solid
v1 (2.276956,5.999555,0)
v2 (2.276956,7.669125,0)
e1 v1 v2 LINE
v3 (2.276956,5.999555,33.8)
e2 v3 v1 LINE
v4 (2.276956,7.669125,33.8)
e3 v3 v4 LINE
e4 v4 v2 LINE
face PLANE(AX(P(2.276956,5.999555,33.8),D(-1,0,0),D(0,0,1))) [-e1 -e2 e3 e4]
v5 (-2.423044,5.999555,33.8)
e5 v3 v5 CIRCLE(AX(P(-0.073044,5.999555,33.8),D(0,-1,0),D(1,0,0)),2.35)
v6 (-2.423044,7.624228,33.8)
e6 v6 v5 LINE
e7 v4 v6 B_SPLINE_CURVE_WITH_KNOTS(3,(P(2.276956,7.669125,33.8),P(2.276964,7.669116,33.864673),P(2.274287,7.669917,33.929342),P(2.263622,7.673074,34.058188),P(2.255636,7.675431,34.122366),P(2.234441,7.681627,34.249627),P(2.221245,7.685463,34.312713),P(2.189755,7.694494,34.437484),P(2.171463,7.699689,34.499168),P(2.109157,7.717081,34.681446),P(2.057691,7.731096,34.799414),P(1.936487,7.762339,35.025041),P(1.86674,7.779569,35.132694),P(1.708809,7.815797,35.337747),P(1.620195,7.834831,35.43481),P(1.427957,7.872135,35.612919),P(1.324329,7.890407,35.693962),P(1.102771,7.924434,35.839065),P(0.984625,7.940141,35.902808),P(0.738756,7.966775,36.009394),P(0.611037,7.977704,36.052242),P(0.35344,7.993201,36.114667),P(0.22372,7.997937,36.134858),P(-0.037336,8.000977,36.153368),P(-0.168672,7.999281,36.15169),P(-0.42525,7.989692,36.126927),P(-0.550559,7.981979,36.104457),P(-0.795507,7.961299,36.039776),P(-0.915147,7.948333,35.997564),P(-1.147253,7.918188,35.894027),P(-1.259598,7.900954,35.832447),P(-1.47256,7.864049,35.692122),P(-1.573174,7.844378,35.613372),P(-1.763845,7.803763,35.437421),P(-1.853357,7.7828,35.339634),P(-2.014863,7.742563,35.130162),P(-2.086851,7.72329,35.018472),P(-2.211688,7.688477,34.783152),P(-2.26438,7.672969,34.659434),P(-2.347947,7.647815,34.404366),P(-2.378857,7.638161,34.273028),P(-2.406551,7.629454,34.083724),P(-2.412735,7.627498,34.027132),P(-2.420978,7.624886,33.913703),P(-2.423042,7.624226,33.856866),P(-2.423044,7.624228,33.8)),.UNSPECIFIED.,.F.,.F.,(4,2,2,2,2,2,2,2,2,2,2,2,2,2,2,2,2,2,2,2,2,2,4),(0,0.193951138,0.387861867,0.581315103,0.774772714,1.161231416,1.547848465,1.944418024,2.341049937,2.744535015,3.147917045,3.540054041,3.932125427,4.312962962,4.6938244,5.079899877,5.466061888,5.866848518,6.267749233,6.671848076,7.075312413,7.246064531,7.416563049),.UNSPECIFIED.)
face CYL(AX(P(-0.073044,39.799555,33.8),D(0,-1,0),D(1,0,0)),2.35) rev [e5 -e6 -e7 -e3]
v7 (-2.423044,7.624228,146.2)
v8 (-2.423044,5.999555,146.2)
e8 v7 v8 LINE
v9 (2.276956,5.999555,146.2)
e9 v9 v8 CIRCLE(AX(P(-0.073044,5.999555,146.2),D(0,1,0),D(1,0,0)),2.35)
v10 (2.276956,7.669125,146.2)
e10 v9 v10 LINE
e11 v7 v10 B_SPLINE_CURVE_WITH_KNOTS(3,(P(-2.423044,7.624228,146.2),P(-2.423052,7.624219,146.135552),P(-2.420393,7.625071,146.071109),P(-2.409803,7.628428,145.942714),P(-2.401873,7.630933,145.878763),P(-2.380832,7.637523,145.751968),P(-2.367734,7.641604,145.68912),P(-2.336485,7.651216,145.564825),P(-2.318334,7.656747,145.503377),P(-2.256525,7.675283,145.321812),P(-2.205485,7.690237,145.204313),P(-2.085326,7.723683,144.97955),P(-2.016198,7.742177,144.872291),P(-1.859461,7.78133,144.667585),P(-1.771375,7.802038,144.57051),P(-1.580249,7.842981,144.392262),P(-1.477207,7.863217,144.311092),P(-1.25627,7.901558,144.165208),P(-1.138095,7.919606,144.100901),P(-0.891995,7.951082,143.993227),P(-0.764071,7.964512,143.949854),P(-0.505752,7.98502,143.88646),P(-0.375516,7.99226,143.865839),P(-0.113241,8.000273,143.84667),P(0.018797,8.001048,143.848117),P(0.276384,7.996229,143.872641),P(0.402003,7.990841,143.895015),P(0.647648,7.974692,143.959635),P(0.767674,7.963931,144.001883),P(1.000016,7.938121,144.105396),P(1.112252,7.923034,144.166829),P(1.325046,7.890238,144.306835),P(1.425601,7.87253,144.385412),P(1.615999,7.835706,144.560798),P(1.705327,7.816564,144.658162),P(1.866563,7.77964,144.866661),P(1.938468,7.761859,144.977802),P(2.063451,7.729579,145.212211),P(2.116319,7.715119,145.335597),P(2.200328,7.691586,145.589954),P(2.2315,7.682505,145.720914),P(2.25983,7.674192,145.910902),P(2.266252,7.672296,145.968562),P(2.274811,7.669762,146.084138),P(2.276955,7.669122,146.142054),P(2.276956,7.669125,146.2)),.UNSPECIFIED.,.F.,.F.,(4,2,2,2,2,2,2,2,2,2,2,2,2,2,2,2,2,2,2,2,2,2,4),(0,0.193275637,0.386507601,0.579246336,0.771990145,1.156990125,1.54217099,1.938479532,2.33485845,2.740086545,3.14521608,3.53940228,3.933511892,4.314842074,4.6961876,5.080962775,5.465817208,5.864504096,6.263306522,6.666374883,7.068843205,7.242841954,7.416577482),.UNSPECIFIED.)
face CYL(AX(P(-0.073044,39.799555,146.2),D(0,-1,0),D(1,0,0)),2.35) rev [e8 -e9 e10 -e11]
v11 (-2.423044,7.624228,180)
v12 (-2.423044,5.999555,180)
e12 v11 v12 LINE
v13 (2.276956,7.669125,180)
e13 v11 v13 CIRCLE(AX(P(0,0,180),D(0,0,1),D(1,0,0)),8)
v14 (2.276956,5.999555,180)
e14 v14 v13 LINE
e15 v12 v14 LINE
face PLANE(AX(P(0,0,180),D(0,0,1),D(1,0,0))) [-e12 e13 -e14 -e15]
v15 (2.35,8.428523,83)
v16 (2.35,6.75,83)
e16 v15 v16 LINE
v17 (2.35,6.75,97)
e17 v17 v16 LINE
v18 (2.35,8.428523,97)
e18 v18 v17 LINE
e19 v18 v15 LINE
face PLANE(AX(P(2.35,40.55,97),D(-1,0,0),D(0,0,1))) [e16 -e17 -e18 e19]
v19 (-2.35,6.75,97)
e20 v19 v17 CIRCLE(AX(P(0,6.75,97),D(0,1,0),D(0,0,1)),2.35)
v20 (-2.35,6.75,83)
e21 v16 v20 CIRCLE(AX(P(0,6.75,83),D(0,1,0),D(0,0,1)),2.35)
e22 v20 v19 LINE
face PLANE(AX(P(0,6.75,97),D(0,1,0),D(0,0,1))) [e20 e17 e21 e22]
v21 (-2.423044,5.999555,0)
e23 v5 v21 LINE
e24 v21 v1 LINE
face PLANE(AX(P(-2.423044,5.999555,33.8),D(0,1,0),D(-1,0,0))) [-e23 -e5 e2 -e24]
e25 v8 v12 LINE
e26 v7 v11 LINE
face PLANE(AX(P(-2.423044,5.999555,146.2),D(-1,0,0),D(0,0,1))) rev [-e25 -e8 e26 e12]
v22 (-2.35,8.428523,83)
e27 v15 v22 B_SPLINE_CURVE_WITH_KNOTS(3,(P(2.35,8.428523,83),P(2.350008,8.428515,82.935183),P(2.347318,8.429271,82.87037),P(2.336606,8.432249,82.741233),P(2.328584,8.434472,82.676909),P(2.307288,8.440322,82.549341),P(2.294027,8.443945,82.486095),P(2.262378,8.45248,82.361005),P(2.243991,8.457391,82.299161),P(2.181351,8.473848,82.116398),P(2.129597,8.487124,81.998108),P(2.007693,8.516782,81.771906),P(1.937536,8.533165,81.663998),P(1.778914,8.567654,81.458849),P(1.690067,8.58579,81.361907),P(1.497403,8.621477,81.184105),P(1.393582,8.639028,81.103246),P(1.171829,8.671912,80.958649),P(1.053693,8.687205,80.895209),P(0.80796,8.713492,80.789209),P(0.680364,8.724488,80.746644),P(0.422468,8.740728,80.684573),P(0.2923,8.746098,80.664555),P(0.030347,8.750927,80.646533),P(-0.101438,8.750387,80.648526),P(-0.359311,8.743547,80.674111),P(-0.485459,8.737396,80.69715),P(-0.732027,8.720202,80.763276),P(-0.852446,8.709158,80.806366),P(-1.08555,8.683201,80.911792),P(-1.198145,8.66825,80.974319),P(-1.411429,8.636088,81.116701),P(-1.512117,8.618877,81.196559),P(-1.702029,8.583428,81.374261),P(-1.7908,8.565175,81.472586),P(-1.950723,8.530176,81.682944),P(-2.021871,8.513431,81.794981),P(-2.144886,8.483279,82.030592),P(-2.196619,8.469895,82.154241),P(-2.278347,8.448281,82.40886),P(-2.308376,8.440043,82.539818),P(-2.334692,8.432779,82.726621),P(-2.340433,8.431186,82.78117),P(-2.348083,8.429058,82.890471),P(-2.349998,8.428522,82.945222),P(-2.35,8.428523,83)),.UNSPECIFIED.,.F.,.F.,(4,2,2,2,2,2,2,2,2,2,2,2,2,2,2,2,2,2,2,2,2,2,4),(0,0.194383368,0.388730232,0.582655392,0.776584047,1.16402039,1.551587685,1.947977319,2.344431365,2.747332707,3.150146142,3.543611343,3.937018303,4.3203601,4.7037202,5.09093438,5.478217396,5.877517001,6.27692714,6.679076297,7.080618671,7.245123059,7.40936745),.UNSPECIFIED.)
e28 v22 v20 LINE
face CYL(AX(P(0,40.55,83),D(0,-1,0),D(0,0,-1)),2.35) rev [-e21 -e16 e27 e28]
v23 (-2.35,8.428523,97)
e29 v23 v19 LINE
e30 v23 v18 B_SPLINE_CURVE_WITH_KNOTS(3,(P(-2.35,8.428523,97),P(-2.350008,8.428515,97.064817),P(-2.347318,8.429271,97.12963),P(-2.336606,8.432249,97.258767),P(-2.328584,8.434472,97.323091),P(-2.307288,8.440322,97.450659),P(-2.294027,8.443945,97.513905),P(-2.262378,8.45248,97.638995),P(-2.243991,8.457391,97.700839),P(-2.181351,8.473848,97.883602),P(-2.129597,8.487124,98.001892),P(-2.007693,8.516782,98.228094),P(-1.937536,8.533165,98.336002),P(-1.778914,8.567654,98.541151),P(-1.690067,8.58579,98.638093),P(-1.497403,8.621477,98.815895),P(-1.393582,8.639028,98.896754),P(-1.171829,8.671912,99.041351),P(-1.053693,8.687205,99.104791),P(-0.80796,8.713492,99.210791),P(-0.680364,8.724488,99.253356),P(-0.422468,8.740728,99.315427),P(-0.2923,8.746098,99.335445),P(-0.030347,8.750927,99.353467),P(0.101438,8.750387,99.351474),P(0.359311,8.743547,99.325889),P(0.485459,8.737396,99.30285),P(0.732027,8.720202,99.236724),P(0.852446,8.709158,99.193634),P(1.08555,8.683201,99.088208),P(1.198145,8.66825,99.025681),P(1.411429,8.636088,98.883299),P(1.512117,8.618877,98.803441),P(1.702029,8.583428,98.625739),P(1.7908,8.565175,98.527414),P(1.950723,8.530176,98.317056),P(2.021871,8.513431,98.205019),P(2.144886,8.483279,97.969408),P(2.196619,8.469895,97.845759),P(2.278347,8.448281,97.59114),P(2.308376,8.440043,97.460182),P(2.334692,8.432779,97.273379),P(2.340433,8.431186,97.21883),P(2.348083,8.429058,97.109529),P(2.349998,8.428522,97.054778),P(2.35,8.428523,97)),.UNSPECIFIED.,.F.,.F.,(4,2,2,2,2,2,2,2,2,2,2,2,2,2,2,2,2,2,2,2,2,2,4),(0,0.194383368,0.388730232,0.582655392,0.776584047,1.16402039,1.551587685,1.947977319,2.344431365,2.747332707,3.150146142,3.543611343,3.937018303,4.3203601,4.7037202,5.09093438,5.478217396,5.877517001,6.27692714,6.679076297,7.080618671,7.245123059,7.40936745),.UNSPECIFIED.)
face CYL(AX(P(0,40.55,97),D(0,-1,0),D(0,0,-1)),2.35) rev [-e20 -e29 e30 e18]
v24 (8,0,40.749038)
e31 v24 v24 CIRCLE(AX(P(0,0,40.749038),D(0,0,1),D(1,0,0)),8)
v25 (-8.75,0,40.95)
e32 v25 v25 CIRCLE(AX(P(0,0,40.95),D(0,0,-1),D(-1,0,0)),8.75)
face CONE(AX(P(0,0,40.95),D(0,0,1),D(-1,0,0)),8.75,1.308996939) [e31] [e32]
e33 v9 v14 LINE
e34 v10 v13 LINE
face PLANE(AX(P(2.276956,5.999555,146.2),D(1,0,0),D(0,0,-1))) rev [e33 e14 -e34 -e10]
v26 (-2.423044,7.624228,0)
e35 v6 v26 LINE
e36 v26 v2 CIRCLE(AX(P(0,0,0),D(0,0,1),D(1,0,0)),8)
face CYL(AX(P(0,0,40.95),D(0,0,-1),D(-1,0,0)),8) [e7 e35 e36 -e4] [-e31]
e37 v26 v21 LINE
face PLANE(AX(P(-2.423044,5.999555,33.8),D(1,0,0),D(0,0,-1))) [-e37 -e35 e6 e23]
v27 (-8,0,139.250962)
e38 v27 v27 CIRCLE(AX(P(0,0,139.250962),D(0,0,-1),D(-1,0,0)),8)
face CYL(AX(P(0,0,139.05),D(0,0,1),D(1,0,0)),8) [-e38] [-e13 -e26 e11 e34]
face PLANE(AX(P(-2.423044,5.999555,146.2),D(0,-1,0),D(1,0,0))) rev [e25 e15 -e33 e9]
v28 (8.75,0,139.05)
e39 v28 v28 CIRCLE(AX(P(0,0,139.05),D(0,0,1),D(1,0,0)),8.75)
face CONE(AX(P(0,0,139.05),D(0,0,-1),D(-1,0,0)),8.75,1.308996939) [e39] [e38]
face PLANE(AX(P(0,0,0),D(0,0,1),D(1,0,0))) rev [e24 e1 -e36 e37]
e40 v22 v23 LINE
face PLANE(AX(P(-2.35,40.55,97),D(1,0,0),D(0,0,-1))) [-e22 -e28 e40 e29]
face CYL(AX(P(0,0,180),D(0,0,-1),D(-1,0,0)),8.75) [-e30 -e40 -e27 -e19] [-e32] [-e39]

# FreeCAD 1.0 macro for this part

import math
import FreeCAD as App
import Part
import Sketcher

V = App.Vector

doc = App.newDocument("Part")
body = doc.addObject("PartDesign::Body", "Body")

# Sketch on XY plane
sketch1 = body.newObject("Sketcher::SketchObject", "Sketch")
sketch1.AttachmentSupport = (doc.getObject("XY_Plane"), [""])
sketch1.MapMode = "FlatFace"
sketch1.addGeometry(Part.Circle(V(0, 0, 0), V(0, 0, 1), 9), False)
sketch1.addConstraint(Sketcher.Constraint("Coincident", 0, 3, -1, 1))
sketch1.addConstraint(Sketcher.Constraint("Diameter", 0, 17.5))
pad1 = body.newObject("PartDesign::Pad", "Pad")
pad1.Profile = sketch1
pad1.Length = 180

# Sketch on XY plane
sketch2 = body.newObject("Sketcher::SketchObject", "Sketch001")
sketch2.AttachmentSupport = (doc.getObject("XY_Plane"), [""])
sketch2.MapMode = "FlatFace"
sketch2.AttachmentOffset = App.Placement(V(0, 0, 180), App.Rotation())
sketch2.addGeometry(Part.Circle(V(0, 0, 0), V(0, 0, 1), 9), False)
sketch2.addGeometry(Part.Circle(V(0, 0, 0), V(0, 0, 1), 8), False)
sketch2.addConstraint(Sketcher.Constraint("Coincident", 0, 3, -1, 1))
sketch2.addConstraint(Sketcher.Constraint("Coincident", 1, 3, -1, 1))
sketch2.addConstraint(Sketcher.Constraint("Diameter", 1, 16.0))
sketch2.addConstraint(Sketcher.Constraint("Diameter", 0, 17.5))
pocket1 = body.newObject("PartDesign::Pocket", "Pocket")
pocket1.Profile = sketch2
pocket1.Length = 40.95

# Sketch on XY plane
sketch3 = body.newObject("Sketcher::SketchObject", "Sketch002")
sketch3.AttachmentSupport = (doc.getObject("XY_Plane"), [""])
sketch3.MapMode = "FlatFace"
sketch3.AttachmentOffset = App.Placement(V(0, 0, 180), App.Rotation())
sketch3.addGeometry(Part.LineSegment(V(-2.4, 6, 0), V(2.3, 6, 0)), False)
sketch3.addGeometry(Part.LineSegment(V(2.3, 6, 0), V(2.3, 7.7, 0)), False)
sketch3.addGeometry(Part.ArcOfCircle(Part.Circle(V(0, 0, 0), V(0, 0, 1), 8), math.radians(73), math.radians(108)), False)
sketch3.addGeometry(Part.LineSegment(V(-2.4, 7.6, 0), V(-2.4, 6, 0)), False)
sketch3.addConstraint(Sketcher.Constraint("Coincident", 0, 2, 1, 1))
sketch3.addConstraint(Sketcher.Constraint("Coincident", 1, 2, 2, 1))
sketch3.addConstraint(Sketcher.Constraint("Coincident", 2, 2, 3, 1))
sketch3.addConstraint(Sketcher.Constraint("Coincident", 3, 2, 0, 1))
sketch3.addConstraint(Sketcher.Constraint("Horizontal", 0))
sketch3.addConstraint(Sketcher.Constraint("Vertical", 1))
sketch3.addConstraint(Sketcher.Constraint("Vertical", 3))
sketch3.addConstraint(Sketcher.Constraint("Coincident", 2, 3, -1, 1))
sketch3.addConstraint(Sketcher.Constraint("Radius", 2, 8.0))
sketch3.addConstraint(Sketcher.Constraint("DistanceX", 0, 1, 0, 2, 4.7))
sketch3.addConstraint(Sketcher.Constraint("DistanceY", 1, 1, 1, 2, 1.669569))
sketch3.addConstraint(Sketcher.Constraint("DistanceY", 3, 2, 3, 1, 1.624673))
pocket2 = body.newObject("PartDesign::Pocket", "Pocket001")
pocket2.Profile = sketch3
pocket2.Length = 33.8

# Sketch on XZ plane
sketch4 = body.newObject("Sketcher::SketchObject", "Sketch003")
sketch4.AttachmentSupport = (doc.getObject("XZ_Plane"), [""])
sketch4.MapMode = "FlatFace"
sketch4.AttachmentOffset = App.Placement(V(0, 0, -5.999555), App.Rotation())
sketch4.addGeometry(Part.LineSegment(V(-2.4, 146.2, 0), V(2.3, 146.2, 0)), False)
sketch4.addGeometry(Part.ArcOfCircle(Part.Circle(V(-0.1, 146.2, 0), V(0, 0, 1), 2.4), math.radians(180), math.radians(360)), False)
sketch4.addConstraint(Sketcher.Constraint("Coincident", 0, 1, 1, 1))
sketch4.addConstraint(Sketcher.Constraint("Coincident", 1, 2, 0, 2))
sketch4.addConstraint(Sketcher.Constraint("Horizontal", 0))
sketch4.addConstraint(Sketcher.Constraint("Horizontal", 1, 3, 0, 1))
sketch4.addConstraint(Sketcher.Constraint("Radius", 1, 2.35))
sketch4.addConstraint(Sketcher.Constraint("DistanceY", -1, 1, 1, 3, 146.2))
sketch4.addConstraint(Sketcher.Constraint("DistanceX", 1, 3, -1, 1, 0.073044))
pocket3 = body.newObject("PartDesign::Pocket", "Pocket002")
pocket3.Profile = sketch4
pocket3.Length = 33.8
doc.recompute()

datumplane = body.newObject("PartDesign::Plane", "DatumPlane")
datumplane.AttachmentSupport = (doc.getObject("XY_Plane"), [""])
datumplane.MapMode = "FlatFace"
datumplane.AttachmentOffset = App.Placement(V(0, 0, 90), App.Rotation())
mirrored = body.newObject("PartDesign::Mirrored", "Mirrored")
mirrored.Originals = [pocket1, pocket2, pocket3]
mirrored.MirrorPlane = (datumplane, [""])
body.Tip = mirrored

# Sketch on XZ plane
sketch5 = body.newObject("Sketcher::SketchObject", "Sketch004")
sketch5.AttachmentSupport = (doc.getObject("XZ_Plane"), [""])
sketch5.MapMode = "FlatFace"
sketch5.AttachmentOffset = App.Placement(V(0, 0, -6.75), App.Rotation())
sketch5.addGeometry(Part.LineSegment(V(-2.4, 83, 0), V(-2.4, 97, 0)), False)
sketch5.addGeometry(Part.ArcOfCircle(Part.Circle(V(0, 97, 0), V(0, 0, 1), 2.4), math.radians(0), math.radians(180)), False)
sketch5.addGeometry(Part.LineSegment(V(2.4, 97, 0), V(2.4, 83, 0)), False)
sketch5.addGeometry(Part.ArcOfCircle(Part.Circle(V(0, 83, 0), V(0, 0, 1), 2.4), math.radians(180), math.radians(360)), False)
sketch5.addConstraint(Sketcher.Constraint("Tangent", 0, 2, 1, 2))
sketch5.addConstraint(Sketcher.Constraint("Tangent", 1, 1, 2, 1))
sketch5.addConstraint(Sketcher.Constraint("Tangent", 2, 2, 3, 2))
sketch5.addConstraint(Sketcher.Constraint("Tangent", 3, 1, 0, 1))
sketch5.addConstraint(Sketcher.Constraint("Vertical", 0))
sketch5.addConstraint(Sketcher.Constraint("Vertical", 2))
sketch5.addConstraint(Sketcher.Constraint("PointOnObject", 1, 3, -2))
sketch5.addConstraint(Sketcher.Constraint("DistanceY", 0, 1, 0, 2, 14.0))
sketch5.addConstraint(Sketcher.Constraint("Radius", 1, 2.35))
sketch5.addConstraint(Sketcher.Constraint("DistanceY", -1, 1, 1, 3, 97.0))
pocket4 = body.newObject("PartDesign::Pocket", "Pocket003")
pocket4.Profile = sketch5
pocket4.Length = 33.8

# Sketch on XY plane
sketch6 = body.newObject("Sketcher::SketchObject", "Sketch005")
sketch6.AttachmentSupport = (doc.getObject("XY_Plane"), [""])
sketch6.MapMode = "FlatFace"
sketch6.AttachmentOffset = App.Placement(V(0, 0, 40.95), App.Rotation())
sketch6.addGeometry(Part.Circle(V(0, 0, 0), V(0, 0, 1), 9), False)
sketch6.addConstraint(Sketcher.Constraint("Coincident", 0, 3, -1, 1))
sketch6.addConstraint(Sketcher.Constraint("Diameter", 0, 17.5))
pad2 = body.newObject("PartDesign::Pad", "Pad001")
pad2.Profile = sketch6
pad2.Length = 7.8

# Sketch on XY plane
sketch7 = body.newObject("Sketcher::SketchObject", "Sketch006")
sketch7.AttachmentSupport = (doc.getObject("XY_Plane"), [""])
sketch7.MapMode = "FlatFace"
sketch7.AttachmentOffset = App.Placement(V(0, 0, 40.95), App.Rotation())
sketch7.addGeometry(Part.Circle(V(0, 0, 0), V(0, 0, 1), 9), False)
sketch7.addConstraint(Sketcher.Constraint("Coincident", 0, 3, -1, 1))
sketch7.addConstraint(Sketcher.Constraint("Diameter", 0, 17.5))
pad3 = body.newObject("PartDesign::Pad", "Pad002")
pad3.Profile = sketch7
pad3.Length = 0.3
pad3.Reversed = True
pad3.TaperAngle = -75
doc.recompute()

datumplane2 = body.newObject("PartDesign::Plane", "DatumPlane001")
datumplane2.AttachmentSupport = (doc.getObject("XY_Plane"), [""])
datumplane2.MapMode = "FlatFace"
datumplane2.AttachmentOffset = App.Placement(V(0, 0, 90), App.Rotation())
mirrored2 = body.newObject("PartDesign::Mirrored", "Mirrored001")
mirrored2.Originals = [pad3]
mirrored2.MirrorPlane = (datumplane2, [""])
body.Tip = mirrored2

doc.recompute()
